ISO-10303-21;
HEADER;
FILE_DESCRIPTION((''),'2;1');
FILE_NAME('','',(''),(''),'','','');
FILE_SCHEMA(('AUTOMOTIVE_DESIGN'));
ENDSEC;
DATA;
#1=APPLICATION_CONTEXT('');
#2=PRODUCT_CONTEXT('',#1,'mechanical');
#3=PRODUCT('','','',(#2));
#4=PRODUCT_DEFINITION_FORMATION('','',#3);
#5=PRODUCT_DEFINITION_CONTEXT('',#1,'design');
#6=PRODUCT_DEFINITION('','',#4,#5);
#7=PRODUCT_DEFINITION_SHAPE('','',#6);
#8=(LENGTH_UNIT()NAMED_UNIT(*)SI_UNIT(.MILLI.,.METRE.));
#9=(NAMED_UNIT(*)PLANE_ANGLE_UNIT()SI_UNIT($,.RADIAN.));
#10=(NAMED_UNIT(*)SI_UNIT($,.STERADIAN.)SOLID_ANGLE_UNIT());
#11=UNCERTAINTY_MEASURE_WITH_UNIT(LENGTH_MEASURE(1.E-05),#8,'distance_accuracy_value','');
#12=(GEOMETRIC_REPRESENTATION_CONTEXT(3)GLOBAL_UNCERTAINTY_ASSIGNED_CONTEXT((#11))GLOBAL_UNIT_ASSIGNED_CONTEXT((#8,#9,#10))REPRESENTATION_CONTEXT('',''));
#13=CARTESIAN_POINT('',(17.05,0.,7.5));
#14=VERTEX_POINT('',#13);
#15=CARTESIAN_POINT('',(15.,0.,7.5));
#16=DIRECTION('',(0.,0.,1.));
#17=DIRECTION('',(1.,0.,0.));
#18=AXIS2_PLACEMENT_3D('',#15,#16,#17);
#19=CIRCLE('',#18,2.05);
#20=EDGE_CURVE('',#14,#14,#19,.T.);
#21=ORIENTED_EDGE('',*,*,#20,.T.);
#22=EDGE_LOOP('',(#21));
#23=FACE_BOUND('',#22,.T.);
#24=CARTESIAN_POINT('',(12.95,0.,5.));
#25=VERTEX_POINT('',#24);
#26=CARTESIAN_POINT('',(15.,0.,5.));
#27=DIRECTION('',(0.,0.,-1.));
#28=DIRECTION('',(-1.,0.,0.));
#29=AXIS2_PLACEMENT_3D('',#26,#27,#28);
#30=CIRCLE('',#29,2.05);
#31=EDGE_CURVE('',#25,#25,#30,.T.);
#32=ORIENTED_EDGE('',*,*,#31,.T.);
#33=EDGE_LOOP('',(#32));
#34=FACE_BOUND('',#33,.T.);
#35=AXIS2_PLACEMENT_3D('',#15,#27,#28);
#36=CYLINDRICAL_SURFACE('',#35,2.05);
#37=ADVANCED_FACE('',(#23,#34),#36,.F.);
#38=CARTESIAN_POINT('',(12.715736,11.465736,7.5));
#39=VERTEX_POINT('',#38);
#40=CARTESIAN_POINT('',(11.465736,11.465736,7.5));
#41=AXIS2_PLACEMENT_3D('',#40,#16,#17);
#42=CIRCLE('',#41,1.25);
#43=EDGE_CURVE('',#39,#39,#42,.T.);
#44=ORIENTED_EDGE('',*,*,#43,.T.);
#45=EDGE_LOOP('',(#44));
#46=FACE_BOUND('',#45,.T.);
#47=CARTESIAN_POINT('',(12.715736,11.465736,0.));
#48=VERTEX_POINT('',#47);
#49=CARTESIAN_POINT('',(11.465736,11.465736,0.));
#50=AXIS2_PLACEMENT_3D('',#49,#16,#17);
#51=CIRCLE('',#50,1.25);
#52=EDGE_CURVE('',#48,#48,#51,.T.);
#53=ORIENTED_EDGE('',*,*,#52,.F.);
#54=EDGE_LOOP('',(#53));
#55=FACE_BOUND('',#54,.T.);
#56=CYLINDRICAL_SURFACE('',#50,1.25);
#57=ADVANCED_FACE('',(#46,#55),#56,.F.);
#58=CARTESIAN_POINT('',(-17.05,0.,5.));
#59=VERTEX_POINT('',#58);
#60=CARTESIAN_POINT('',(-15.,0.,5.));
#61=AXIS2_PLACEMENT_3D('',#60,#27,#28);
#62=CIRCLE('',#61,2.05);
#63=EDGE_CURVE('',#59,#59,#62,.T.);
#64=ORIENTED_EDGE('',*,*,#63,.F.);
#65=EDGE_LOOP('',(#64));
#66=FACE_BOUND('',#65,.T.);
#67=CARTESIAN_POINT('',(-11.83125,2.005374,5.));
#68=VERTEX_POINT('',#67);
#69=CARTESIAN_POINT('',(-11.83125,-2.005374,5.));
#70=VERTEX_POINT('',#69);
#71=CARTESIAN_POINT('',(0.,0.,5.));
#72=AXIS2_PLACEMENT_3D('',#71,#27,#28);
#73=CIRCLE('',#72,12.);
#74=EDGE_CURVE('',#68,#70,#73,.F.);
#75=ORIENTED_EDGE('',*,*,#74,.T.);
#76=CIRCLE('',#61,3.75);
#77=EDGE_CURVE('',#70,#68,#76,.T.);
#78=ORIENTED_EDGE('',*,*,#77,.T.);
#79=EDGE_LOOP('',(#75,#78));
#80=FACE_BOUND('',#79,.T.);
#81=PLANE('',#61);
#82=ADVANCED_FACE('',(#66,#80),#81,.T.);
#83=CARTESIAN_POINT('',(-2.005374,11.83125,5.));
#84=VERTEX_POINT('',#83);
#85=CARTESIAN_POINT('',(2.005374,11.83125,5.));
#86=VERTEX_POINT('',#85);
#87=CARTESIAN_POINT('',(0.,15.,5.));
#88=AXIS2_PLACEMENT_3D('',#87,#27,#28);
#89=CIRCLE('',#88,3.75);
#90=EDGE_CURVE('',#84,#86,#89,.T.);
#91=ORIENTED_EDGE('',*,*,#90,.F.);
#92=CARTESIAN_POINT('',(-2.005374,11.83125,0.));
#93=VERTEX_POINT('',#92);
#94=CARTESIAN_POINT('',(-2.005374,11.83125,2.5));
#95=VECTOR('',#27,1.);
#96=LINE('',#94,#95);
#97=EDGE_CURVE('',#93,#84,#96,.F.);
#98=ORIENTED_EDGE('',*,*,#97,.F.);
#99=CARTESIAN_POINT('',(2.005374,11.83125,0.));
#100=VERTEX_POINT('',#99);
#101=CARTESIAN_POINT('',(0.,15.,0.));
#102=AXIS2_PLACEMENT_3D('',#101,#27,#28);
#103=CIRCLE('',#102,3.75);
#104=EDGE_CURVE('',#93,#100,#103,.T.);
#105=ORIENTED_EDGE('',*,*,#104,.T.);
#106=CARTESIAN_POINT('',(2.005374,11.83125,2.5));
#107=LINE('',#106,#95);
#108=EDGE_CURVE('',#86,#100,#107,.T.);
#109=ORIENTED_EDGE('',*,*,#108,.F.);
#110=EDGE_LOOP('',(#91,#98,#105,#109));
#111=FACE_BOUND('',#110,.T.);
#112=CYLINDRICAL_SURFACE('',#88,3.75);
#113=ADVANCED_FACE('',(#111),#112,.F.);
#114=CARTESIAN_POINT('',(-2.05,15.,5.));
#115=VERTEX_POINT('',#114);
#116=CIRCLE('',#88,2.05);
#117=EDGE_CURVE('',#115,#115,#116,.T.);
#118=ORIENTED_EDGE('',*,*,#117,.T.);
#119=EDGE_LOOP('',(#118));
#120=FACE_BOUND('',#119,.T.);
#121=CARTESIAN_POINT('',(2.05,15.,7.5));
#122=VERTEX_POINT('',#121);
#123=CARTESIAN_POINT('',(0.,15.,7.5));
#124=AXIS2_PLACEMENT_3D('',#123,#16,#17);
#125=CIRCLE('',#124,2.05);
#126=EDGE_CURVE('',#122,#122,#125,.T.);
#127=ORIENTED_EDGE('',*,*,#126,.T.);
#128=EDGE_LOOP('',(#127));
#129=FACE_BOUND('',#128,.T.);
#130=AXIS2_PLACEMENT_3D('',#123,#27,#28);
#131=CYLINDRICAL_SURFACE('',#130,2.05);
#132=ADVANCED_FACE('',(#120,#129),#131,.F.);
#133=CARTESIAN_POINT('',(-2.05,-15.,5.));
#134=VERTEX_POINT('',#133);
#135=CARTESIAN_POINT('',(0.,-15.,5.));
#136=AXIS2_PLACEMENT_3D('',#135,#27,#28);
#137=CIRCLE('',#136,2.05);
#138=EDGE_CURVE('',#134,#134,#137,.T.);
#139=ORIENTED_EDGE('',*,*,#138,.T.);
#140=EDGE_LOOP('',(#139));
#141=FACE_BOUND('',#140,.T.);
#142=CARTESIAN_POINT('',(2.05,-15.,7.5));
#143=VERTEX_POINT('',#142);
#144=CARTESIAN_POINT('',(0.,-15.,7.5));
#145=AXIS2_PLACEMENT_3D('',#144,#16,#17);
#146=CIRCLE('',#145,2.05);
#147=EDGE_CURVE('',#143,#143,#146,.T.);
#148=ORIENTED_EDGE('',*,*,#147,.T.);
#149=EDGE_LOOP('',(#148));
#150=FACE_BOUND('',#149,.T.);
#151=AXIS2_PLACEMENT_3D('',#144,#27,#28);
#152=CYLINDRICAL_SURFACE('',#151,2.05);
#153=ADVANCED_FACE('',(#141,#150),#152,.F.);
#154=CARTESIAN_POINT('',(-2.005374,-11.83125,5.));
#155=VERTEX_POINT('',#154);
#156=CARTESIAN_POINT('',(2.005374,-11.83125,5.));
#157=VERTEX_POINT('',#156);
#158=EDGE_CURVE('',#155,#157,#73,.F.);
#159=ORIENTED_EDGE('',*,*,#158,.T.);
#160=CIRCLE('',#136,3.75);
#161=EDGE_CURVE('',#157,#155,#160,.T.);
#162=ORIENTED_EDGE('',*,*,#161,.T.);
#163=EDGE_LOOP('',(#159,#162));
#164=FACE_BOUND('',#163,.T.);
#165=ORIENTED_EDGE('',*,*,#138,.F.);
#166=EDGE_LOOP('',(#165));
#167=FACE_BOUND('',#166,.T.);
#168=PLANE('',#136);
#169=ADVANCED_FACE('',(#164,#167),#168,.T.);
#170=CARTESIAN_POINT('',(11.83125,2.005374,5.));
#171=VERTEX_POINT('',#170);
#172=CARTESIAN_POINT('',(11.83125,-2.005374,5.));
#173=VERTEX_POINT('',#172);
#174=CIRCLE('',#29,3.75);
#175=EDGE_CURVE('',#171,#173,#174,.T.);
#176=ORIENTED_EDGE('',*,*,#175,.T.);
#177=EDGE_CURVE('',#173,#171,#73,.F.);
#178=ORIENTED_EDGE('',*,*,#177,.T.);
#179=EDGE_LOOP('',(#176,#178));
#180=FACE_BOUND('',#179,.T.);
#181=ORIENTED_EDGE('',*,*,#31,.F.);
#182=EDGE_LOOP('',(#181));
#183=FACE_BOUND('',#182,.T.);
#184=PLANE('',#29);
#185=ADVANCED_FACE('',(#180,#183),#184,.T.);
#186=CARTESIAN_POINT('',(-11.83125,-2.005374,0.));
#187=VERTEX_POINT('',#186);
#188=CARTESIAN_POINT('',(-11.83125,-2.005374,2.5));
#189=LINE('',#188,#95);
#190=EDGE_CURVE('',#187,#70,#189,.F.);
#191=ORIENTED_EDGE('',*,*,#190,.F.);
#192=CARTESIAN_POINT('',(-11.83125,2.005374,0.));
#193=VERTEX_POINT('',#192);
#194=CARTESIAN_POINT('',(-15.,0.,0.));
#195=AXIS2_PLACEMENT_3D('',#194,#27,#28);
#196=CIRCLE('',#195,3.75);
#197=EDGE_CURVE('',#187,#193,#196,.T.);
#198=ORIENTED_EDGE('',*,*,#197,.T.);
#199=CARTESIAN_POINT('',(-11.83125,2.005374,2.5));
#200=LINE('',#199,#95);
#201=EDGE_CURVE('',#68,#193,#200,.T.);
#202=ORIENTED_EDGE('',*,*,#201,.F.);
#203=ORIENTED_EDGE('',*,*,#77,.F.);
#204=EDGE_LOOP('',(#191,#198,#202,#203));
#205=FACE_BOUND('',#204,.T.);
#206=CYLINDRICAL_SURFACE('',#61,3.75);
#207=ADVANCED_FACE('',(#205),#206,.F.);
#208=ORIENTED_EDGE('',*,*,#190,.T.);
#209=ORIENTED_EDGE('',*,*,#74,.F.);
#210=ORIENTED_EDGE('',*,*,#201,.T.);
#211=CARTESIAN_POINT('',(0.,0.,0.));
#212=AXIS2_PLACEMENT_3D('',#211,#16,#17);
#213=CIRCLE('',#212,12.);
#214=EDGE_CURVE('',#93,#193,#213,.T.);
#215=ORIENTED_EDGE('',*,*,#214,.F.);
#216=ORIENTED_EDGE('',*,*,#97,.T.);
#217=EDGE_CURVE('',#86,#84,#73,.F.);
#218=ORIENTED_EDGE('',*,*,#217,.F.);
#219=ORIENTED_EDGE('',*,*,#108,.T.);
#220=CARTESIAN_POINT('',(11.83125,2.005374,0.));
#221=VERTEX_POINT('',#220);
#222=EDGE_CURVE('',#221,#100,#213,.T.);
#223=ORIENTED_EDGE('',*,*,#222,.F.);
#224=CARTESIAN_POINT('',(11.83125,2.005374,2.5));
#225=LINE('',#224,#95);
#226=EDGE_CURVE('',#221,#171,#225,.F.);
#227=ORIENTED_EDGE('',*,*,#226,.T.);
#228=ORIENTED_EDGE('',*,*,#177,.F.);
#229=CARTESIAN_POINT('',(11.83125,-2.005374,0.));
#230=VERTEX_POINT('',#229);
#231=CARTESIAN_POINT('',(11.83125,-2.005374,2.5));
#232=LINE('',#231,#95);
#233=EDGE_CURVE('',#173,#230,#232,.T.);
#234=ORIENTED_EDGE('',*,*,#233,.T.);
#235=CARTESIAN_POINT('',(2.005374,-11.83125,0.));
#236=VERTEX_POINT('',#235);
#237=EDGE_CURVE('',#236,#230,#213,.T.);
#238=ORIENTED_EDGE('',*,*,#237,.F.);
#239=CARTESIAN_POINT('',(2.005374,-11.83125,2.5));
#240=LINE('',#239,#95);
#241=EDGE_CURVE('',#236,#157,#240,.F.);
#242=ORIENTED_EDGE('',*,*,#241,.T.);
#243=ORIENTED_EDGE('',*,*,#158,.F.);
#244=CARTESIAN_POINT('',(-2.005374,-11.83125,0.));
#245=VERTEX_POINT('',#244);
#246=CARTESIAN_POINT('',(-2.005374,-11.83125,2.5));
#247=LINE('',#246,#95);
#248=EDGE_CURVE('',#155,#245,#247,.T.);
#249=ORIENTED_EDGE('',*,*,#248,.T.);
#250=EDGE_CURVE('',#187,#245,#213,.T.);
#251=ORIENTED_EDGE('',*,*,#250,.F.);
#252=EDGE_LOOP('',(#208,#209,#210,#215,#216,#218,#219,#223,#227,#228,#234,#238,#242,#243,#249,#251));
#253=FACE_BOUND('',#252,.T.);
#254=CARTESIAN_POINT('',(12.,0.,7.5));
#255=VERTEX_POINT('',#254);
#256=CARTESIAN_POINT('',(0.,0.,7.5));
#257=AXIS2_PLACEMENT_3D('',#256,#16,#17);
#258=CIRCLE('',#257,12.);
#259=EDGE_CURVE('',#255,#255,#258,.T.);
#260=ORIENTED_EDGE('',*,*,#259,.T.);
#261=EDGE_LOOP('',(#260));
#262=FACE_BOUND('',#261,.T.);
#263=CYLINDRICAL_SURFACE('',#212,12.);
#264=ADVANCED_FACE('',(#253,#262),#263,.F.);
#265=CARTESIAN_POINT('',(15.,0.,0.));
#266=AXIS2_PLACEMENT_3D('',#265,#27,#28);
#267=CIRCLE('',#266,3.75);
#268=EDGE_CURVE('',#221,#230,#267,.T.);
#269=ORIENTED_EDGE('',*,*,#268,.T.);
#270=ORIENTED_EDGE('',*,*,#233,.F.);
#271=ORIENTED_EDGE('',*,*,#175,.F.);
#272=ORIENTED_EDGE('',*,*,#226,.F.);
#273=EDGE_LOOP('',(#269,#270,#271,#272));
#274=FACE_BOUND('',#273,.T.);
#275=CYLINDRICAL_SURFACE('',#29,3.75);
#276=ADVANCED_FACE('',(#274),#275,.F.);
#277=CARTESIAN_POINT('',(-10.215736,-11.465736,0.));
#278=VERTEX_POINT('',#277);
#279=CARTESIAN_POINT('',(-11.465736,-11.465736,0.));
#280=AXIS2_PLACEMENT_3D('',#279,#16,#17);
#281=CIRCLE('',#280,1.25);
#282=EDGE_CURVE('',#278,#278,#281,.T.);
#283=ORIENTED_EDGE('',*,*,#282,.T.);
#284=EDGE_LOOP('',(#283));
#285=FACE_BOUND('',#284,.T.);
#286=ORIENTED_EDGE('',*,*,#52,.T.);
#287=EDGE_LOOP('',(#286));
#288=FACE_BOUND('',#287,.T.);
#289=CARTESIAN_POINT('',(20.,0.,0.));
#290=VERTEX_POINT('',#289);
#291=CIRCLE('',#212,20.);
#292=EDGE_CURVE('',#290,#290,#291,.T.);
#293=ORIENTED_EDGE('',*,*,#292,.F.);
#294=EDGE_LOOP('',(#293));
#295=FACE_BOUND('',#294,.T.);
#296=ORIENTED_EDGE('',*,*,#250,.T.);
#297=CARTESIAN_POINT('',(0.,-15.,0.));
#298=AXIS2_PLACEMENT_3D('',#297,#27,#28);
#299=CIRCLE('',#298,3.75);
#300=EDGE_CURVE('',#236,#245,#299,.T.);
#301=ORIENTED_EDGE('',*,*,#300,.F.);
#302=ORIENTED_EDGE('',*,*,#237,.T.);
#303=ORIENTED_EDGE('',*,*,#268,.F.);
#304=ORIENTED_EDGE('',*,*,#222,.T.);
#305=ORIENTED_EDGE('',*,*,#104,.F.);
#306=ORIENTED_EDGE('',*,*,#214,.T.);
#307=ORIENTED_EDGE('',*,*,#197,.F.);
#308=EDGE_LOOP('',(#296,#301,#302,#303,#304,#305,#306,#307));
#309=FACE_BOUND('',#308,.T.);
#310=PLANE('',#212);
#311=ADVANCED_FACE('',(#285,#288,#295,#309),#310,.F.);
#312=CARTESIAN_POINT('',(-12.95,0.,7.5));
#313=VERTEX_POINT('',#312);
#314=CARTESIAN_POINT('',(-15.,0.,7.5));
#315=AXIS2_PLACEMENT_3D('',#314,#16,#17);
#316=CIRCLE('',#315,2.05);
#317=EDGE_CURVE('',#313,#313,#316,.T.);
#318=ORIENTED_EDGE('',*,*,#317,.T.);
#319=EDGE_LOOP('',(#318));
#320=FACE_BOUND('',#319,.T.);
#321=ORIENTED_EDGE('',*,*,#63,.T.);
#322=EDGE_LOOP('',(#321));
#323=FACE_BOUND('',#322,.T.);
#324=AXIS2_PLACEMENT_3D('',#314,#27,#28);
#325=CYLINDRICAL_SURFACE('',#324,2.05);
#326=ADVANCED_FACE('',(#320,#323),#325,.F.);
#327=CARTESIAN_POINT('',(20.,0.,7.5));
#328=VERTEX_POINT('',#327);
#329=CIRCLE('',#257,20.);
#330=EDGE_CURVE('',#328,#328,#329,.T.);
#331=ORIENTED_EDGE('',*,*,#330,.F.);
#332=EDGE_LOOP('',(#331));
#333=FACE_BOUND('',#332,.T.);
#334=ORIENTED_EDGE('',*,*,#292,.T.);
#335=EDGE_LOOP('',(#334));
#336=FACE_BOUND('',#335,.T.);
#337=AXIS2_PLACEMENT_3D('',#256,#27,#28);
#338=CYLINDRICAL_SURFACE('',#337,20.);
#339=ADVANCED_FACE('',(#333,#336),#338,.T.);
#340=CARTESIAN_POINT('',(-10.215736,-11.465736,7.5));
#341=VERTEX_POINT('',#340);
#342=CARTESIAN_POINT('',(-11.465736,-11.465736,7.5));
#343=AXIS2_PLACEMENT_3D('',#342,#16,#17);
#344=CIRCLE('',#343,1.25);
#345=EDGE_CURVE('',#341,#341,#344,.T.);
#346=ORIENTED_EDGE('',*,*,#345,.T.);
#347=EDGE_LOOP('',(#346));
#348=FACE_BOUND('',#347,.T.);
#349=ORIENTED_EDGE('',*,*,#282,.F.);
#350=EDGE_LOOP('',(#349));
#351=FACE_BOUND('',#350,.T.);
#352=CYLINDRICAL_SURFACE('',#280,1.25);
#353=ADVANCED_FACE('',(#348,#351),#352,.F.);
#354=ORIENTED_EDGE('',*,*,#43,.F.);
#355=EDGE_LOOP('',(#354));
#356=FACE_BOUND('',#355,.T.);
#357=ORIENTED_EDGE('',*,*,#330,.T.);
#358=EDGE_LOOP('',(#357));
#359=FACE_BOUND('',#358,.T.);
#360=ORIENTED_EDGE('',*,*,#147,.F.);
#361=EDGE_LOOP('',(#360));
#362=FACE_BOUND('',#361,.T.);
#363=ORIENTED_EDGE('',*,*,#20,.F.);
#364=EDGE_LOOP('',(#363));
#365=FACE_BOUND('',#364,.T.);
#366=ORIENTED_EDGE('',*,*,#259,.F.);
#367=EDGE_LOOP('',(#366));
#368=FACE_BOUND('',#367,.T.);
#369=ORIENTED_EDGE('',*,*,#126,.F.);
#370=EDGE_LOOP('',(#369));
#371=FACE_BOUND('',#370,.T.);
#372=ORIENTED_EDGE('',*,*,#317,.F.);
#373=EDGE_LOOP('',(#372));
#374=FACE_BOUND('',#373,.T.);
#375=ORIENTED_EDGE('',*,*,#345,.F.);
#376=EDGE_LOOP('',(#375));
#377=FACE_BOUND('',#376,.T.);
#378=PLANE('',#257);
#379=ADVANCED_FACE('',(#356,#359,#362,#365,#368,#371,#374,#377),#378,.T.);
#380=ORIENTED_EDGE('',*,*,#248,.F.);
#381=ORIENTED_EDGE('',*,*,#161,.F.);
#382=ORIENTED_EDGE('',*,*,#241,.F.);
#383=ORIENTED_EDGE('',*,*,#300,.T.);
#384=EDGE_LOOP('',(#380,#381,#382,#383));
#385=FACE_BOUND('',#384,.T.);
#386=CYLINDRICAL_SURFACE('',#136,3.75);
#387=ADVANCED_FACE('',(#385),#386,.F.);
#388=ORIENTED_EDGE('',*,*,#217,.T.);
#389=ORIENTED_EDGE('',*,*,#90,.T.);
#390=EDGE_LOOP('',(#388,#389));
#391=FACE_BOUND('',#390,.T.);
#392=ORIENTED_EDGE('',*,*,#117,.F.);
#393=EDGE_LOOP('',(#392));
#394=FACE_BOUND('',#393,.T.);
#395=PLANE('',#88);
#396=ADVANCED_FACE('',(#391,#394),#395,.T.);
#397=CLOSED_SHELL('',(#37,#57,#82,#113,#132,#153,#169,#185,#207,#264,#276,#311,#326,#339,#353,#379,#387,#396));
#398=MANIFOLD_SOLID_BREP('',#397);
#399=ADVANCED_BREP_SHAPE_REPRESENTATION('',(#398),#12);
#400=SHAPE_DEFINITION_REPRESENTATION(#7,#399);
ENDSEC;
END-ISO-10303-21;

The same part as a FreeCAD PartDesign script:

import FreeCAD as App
import Part
import Sketcher

V = App.Vector
Q = App.Units.Quantity

doc = App.newDocument("Part")
body = doc.addObject("PartDesign::Body", "Body")

sketch1 = body.newObject("Sketcher::SketchObject", "Sketch")
sketch1.AttachmentSupport = (doc.getObject("XY_Plane"), [""])
sketch1.MapMode = "FlatFace"
sketch1.addGeometry([
    Part.Circle(V(0, 0, 0), V(0, 0, 1), 20),
    Part.Circle(V(0, -15, 0), V(0, 0, 1), 2.05),
    Part.Circle(V(-15, 0, 0), V(0, 0, 1), 2.05),
    Part.Circle(V(0, 15, 0), V(0, 0, 1), 2.05),
    Part.Circle(V(15, 0, 0), V(0, 0, 1), 2.05),
], False)
sketch1.addConstraint([
    Sketcher.Constraint("Coincident", 0, 3, -1, 1),
    Sketcher.Constraint("Equal", 1, 2),
    Sketcher.Constraint("Equal", 2, 3),
    Sketcher.Constraint("Equal", 3, 4),
    Sketcher.Constraint("Symmetric", 1, 3, 3, 3, -1, 1),
    Sketcher.Constraint("Symmetric", 2, 3, 4, 3, -1, 1),
    Sketcher.Constraint("PointOnObject", 1, 3, -2),
    Sketcher.Constraint("PointOnObject", 2, 3, -1),
    Sketcher.Constraint("Diameter", 0, Q("40 mm")),
    Sketcher.Constraint("Diameter", 1, Q("4.1 mm")),
    Sketcher.Constraint("DistanceY", 1, 3, -1, 1, Q("15 mm")),
    Sketcher.Constraint("DistanceX", 2, 3, -1, 1, Q("15 mm")),
])
pad1 = body.newObject("PartDesign::Pad", "Pad")
pad1.Profile = sketch1
pad1.Length = 7.5

sketch2 = body.newObject("Sketcher::SketchObject", "Sketch001")
sketch2.AttachmentSupport = (doc.getObject("XY_Plane"), [""])
sketch2.MapMode = "FlatFace"
sketch2.AttachmentOffset = App.Placement(V(0, 0, 7.5), App.Rotation())
sketch2.addGeometry([
    Part.Circle(V(11.465736, 11.465736, 0), V(0, 0, 1), 1.25),
    Part.Circle(V(-11.465736, -11.465736, 0), V(0, 0, 1), 1.25),
    Part.Circle(V(0, 0, 0), V(0, 0, 1), 12),
], False)
sketch2.addConstraint([
    Sketcher.Constraint("Coincident", 2, 3, -1, 1),
    Sketcher.Constraint("Equal", 0, 1),
    Sketcher.Constraint("Symmetric", 0, 3, 1, 3, -1, 1),
    Sketcher.Constraint("Diameter", 2, Q("24 mm")),
    Sketcher.Constraint("Diameter", 0, Q("2.5 mm")),
    Sketcher.Constraint("DistanceX", -1, 1, 0, 3, Q("11.465736 mm")),
    Sketcher.Constraint("DistanceY", -1, 1, 0, 3, Q("11.465736 mm")),
])
pocket1 = body.newObject("PartDesign::Pocket", "Pocket")
pocket1.Profile = sketch2
pocket1.Type = "ThroughAll"

sketch3 = body.newObject("Sketcher::SketchObject", "Sketch002")
sketch3.AttachmentSupport = (doc.getObject("XY_Plane"), [""])
sketch3.MapMode = "FlatFace"
sketch3.addGeometry([
    Part.Circle(V(0, 15, 0), V(0, 0, 1), 3.75),
    Part.Circle(V(-15, 0, 0), V(0, 0, 1), 3.75),
    Part.Circle(V(0, -15, 0), V(0, 0, 1), 3.75),
    Part.Circle(V(15, 0, 0), V(0, 0, 1), 3.75),
], False)
sketch3.addConstraint([
    Sketcher.Constraint("Equal", 0, 1),
    Sketcher.Constraint("Equal", 1, 2),
    Sketcher.Constraint("Equal", 2, 3),
    Sketcher.Constraint("Symmetric", 0, 3, 2, 3, -1, 1),
    Sketcher.Constraint("Symmetric", 1, 3, 3, 3, -1, 1),
    Sketcher.Constraint("PointOnObject", 0, 3, -2),
    Sketcher.Constraint("PointOnObject", 1, 3, -1),
    Sketcher.Constraint("Diameter", 0, Q("7.5 mm")),
    Sketcher.Constraint("DistanceY", -1, 1, 0, 3, Q("15 mm")),
    Sketcher.Constraint("DistanceX", 1, 3, -1, 1, Q("15 mm")),
])
pocket2 = body.newObject("PartDesign::Pocket", "Pocket001")
pocket2.Profile = sketch3
pocket2.Length = 5
pocket2.Reversed = True

doc.recompute()
